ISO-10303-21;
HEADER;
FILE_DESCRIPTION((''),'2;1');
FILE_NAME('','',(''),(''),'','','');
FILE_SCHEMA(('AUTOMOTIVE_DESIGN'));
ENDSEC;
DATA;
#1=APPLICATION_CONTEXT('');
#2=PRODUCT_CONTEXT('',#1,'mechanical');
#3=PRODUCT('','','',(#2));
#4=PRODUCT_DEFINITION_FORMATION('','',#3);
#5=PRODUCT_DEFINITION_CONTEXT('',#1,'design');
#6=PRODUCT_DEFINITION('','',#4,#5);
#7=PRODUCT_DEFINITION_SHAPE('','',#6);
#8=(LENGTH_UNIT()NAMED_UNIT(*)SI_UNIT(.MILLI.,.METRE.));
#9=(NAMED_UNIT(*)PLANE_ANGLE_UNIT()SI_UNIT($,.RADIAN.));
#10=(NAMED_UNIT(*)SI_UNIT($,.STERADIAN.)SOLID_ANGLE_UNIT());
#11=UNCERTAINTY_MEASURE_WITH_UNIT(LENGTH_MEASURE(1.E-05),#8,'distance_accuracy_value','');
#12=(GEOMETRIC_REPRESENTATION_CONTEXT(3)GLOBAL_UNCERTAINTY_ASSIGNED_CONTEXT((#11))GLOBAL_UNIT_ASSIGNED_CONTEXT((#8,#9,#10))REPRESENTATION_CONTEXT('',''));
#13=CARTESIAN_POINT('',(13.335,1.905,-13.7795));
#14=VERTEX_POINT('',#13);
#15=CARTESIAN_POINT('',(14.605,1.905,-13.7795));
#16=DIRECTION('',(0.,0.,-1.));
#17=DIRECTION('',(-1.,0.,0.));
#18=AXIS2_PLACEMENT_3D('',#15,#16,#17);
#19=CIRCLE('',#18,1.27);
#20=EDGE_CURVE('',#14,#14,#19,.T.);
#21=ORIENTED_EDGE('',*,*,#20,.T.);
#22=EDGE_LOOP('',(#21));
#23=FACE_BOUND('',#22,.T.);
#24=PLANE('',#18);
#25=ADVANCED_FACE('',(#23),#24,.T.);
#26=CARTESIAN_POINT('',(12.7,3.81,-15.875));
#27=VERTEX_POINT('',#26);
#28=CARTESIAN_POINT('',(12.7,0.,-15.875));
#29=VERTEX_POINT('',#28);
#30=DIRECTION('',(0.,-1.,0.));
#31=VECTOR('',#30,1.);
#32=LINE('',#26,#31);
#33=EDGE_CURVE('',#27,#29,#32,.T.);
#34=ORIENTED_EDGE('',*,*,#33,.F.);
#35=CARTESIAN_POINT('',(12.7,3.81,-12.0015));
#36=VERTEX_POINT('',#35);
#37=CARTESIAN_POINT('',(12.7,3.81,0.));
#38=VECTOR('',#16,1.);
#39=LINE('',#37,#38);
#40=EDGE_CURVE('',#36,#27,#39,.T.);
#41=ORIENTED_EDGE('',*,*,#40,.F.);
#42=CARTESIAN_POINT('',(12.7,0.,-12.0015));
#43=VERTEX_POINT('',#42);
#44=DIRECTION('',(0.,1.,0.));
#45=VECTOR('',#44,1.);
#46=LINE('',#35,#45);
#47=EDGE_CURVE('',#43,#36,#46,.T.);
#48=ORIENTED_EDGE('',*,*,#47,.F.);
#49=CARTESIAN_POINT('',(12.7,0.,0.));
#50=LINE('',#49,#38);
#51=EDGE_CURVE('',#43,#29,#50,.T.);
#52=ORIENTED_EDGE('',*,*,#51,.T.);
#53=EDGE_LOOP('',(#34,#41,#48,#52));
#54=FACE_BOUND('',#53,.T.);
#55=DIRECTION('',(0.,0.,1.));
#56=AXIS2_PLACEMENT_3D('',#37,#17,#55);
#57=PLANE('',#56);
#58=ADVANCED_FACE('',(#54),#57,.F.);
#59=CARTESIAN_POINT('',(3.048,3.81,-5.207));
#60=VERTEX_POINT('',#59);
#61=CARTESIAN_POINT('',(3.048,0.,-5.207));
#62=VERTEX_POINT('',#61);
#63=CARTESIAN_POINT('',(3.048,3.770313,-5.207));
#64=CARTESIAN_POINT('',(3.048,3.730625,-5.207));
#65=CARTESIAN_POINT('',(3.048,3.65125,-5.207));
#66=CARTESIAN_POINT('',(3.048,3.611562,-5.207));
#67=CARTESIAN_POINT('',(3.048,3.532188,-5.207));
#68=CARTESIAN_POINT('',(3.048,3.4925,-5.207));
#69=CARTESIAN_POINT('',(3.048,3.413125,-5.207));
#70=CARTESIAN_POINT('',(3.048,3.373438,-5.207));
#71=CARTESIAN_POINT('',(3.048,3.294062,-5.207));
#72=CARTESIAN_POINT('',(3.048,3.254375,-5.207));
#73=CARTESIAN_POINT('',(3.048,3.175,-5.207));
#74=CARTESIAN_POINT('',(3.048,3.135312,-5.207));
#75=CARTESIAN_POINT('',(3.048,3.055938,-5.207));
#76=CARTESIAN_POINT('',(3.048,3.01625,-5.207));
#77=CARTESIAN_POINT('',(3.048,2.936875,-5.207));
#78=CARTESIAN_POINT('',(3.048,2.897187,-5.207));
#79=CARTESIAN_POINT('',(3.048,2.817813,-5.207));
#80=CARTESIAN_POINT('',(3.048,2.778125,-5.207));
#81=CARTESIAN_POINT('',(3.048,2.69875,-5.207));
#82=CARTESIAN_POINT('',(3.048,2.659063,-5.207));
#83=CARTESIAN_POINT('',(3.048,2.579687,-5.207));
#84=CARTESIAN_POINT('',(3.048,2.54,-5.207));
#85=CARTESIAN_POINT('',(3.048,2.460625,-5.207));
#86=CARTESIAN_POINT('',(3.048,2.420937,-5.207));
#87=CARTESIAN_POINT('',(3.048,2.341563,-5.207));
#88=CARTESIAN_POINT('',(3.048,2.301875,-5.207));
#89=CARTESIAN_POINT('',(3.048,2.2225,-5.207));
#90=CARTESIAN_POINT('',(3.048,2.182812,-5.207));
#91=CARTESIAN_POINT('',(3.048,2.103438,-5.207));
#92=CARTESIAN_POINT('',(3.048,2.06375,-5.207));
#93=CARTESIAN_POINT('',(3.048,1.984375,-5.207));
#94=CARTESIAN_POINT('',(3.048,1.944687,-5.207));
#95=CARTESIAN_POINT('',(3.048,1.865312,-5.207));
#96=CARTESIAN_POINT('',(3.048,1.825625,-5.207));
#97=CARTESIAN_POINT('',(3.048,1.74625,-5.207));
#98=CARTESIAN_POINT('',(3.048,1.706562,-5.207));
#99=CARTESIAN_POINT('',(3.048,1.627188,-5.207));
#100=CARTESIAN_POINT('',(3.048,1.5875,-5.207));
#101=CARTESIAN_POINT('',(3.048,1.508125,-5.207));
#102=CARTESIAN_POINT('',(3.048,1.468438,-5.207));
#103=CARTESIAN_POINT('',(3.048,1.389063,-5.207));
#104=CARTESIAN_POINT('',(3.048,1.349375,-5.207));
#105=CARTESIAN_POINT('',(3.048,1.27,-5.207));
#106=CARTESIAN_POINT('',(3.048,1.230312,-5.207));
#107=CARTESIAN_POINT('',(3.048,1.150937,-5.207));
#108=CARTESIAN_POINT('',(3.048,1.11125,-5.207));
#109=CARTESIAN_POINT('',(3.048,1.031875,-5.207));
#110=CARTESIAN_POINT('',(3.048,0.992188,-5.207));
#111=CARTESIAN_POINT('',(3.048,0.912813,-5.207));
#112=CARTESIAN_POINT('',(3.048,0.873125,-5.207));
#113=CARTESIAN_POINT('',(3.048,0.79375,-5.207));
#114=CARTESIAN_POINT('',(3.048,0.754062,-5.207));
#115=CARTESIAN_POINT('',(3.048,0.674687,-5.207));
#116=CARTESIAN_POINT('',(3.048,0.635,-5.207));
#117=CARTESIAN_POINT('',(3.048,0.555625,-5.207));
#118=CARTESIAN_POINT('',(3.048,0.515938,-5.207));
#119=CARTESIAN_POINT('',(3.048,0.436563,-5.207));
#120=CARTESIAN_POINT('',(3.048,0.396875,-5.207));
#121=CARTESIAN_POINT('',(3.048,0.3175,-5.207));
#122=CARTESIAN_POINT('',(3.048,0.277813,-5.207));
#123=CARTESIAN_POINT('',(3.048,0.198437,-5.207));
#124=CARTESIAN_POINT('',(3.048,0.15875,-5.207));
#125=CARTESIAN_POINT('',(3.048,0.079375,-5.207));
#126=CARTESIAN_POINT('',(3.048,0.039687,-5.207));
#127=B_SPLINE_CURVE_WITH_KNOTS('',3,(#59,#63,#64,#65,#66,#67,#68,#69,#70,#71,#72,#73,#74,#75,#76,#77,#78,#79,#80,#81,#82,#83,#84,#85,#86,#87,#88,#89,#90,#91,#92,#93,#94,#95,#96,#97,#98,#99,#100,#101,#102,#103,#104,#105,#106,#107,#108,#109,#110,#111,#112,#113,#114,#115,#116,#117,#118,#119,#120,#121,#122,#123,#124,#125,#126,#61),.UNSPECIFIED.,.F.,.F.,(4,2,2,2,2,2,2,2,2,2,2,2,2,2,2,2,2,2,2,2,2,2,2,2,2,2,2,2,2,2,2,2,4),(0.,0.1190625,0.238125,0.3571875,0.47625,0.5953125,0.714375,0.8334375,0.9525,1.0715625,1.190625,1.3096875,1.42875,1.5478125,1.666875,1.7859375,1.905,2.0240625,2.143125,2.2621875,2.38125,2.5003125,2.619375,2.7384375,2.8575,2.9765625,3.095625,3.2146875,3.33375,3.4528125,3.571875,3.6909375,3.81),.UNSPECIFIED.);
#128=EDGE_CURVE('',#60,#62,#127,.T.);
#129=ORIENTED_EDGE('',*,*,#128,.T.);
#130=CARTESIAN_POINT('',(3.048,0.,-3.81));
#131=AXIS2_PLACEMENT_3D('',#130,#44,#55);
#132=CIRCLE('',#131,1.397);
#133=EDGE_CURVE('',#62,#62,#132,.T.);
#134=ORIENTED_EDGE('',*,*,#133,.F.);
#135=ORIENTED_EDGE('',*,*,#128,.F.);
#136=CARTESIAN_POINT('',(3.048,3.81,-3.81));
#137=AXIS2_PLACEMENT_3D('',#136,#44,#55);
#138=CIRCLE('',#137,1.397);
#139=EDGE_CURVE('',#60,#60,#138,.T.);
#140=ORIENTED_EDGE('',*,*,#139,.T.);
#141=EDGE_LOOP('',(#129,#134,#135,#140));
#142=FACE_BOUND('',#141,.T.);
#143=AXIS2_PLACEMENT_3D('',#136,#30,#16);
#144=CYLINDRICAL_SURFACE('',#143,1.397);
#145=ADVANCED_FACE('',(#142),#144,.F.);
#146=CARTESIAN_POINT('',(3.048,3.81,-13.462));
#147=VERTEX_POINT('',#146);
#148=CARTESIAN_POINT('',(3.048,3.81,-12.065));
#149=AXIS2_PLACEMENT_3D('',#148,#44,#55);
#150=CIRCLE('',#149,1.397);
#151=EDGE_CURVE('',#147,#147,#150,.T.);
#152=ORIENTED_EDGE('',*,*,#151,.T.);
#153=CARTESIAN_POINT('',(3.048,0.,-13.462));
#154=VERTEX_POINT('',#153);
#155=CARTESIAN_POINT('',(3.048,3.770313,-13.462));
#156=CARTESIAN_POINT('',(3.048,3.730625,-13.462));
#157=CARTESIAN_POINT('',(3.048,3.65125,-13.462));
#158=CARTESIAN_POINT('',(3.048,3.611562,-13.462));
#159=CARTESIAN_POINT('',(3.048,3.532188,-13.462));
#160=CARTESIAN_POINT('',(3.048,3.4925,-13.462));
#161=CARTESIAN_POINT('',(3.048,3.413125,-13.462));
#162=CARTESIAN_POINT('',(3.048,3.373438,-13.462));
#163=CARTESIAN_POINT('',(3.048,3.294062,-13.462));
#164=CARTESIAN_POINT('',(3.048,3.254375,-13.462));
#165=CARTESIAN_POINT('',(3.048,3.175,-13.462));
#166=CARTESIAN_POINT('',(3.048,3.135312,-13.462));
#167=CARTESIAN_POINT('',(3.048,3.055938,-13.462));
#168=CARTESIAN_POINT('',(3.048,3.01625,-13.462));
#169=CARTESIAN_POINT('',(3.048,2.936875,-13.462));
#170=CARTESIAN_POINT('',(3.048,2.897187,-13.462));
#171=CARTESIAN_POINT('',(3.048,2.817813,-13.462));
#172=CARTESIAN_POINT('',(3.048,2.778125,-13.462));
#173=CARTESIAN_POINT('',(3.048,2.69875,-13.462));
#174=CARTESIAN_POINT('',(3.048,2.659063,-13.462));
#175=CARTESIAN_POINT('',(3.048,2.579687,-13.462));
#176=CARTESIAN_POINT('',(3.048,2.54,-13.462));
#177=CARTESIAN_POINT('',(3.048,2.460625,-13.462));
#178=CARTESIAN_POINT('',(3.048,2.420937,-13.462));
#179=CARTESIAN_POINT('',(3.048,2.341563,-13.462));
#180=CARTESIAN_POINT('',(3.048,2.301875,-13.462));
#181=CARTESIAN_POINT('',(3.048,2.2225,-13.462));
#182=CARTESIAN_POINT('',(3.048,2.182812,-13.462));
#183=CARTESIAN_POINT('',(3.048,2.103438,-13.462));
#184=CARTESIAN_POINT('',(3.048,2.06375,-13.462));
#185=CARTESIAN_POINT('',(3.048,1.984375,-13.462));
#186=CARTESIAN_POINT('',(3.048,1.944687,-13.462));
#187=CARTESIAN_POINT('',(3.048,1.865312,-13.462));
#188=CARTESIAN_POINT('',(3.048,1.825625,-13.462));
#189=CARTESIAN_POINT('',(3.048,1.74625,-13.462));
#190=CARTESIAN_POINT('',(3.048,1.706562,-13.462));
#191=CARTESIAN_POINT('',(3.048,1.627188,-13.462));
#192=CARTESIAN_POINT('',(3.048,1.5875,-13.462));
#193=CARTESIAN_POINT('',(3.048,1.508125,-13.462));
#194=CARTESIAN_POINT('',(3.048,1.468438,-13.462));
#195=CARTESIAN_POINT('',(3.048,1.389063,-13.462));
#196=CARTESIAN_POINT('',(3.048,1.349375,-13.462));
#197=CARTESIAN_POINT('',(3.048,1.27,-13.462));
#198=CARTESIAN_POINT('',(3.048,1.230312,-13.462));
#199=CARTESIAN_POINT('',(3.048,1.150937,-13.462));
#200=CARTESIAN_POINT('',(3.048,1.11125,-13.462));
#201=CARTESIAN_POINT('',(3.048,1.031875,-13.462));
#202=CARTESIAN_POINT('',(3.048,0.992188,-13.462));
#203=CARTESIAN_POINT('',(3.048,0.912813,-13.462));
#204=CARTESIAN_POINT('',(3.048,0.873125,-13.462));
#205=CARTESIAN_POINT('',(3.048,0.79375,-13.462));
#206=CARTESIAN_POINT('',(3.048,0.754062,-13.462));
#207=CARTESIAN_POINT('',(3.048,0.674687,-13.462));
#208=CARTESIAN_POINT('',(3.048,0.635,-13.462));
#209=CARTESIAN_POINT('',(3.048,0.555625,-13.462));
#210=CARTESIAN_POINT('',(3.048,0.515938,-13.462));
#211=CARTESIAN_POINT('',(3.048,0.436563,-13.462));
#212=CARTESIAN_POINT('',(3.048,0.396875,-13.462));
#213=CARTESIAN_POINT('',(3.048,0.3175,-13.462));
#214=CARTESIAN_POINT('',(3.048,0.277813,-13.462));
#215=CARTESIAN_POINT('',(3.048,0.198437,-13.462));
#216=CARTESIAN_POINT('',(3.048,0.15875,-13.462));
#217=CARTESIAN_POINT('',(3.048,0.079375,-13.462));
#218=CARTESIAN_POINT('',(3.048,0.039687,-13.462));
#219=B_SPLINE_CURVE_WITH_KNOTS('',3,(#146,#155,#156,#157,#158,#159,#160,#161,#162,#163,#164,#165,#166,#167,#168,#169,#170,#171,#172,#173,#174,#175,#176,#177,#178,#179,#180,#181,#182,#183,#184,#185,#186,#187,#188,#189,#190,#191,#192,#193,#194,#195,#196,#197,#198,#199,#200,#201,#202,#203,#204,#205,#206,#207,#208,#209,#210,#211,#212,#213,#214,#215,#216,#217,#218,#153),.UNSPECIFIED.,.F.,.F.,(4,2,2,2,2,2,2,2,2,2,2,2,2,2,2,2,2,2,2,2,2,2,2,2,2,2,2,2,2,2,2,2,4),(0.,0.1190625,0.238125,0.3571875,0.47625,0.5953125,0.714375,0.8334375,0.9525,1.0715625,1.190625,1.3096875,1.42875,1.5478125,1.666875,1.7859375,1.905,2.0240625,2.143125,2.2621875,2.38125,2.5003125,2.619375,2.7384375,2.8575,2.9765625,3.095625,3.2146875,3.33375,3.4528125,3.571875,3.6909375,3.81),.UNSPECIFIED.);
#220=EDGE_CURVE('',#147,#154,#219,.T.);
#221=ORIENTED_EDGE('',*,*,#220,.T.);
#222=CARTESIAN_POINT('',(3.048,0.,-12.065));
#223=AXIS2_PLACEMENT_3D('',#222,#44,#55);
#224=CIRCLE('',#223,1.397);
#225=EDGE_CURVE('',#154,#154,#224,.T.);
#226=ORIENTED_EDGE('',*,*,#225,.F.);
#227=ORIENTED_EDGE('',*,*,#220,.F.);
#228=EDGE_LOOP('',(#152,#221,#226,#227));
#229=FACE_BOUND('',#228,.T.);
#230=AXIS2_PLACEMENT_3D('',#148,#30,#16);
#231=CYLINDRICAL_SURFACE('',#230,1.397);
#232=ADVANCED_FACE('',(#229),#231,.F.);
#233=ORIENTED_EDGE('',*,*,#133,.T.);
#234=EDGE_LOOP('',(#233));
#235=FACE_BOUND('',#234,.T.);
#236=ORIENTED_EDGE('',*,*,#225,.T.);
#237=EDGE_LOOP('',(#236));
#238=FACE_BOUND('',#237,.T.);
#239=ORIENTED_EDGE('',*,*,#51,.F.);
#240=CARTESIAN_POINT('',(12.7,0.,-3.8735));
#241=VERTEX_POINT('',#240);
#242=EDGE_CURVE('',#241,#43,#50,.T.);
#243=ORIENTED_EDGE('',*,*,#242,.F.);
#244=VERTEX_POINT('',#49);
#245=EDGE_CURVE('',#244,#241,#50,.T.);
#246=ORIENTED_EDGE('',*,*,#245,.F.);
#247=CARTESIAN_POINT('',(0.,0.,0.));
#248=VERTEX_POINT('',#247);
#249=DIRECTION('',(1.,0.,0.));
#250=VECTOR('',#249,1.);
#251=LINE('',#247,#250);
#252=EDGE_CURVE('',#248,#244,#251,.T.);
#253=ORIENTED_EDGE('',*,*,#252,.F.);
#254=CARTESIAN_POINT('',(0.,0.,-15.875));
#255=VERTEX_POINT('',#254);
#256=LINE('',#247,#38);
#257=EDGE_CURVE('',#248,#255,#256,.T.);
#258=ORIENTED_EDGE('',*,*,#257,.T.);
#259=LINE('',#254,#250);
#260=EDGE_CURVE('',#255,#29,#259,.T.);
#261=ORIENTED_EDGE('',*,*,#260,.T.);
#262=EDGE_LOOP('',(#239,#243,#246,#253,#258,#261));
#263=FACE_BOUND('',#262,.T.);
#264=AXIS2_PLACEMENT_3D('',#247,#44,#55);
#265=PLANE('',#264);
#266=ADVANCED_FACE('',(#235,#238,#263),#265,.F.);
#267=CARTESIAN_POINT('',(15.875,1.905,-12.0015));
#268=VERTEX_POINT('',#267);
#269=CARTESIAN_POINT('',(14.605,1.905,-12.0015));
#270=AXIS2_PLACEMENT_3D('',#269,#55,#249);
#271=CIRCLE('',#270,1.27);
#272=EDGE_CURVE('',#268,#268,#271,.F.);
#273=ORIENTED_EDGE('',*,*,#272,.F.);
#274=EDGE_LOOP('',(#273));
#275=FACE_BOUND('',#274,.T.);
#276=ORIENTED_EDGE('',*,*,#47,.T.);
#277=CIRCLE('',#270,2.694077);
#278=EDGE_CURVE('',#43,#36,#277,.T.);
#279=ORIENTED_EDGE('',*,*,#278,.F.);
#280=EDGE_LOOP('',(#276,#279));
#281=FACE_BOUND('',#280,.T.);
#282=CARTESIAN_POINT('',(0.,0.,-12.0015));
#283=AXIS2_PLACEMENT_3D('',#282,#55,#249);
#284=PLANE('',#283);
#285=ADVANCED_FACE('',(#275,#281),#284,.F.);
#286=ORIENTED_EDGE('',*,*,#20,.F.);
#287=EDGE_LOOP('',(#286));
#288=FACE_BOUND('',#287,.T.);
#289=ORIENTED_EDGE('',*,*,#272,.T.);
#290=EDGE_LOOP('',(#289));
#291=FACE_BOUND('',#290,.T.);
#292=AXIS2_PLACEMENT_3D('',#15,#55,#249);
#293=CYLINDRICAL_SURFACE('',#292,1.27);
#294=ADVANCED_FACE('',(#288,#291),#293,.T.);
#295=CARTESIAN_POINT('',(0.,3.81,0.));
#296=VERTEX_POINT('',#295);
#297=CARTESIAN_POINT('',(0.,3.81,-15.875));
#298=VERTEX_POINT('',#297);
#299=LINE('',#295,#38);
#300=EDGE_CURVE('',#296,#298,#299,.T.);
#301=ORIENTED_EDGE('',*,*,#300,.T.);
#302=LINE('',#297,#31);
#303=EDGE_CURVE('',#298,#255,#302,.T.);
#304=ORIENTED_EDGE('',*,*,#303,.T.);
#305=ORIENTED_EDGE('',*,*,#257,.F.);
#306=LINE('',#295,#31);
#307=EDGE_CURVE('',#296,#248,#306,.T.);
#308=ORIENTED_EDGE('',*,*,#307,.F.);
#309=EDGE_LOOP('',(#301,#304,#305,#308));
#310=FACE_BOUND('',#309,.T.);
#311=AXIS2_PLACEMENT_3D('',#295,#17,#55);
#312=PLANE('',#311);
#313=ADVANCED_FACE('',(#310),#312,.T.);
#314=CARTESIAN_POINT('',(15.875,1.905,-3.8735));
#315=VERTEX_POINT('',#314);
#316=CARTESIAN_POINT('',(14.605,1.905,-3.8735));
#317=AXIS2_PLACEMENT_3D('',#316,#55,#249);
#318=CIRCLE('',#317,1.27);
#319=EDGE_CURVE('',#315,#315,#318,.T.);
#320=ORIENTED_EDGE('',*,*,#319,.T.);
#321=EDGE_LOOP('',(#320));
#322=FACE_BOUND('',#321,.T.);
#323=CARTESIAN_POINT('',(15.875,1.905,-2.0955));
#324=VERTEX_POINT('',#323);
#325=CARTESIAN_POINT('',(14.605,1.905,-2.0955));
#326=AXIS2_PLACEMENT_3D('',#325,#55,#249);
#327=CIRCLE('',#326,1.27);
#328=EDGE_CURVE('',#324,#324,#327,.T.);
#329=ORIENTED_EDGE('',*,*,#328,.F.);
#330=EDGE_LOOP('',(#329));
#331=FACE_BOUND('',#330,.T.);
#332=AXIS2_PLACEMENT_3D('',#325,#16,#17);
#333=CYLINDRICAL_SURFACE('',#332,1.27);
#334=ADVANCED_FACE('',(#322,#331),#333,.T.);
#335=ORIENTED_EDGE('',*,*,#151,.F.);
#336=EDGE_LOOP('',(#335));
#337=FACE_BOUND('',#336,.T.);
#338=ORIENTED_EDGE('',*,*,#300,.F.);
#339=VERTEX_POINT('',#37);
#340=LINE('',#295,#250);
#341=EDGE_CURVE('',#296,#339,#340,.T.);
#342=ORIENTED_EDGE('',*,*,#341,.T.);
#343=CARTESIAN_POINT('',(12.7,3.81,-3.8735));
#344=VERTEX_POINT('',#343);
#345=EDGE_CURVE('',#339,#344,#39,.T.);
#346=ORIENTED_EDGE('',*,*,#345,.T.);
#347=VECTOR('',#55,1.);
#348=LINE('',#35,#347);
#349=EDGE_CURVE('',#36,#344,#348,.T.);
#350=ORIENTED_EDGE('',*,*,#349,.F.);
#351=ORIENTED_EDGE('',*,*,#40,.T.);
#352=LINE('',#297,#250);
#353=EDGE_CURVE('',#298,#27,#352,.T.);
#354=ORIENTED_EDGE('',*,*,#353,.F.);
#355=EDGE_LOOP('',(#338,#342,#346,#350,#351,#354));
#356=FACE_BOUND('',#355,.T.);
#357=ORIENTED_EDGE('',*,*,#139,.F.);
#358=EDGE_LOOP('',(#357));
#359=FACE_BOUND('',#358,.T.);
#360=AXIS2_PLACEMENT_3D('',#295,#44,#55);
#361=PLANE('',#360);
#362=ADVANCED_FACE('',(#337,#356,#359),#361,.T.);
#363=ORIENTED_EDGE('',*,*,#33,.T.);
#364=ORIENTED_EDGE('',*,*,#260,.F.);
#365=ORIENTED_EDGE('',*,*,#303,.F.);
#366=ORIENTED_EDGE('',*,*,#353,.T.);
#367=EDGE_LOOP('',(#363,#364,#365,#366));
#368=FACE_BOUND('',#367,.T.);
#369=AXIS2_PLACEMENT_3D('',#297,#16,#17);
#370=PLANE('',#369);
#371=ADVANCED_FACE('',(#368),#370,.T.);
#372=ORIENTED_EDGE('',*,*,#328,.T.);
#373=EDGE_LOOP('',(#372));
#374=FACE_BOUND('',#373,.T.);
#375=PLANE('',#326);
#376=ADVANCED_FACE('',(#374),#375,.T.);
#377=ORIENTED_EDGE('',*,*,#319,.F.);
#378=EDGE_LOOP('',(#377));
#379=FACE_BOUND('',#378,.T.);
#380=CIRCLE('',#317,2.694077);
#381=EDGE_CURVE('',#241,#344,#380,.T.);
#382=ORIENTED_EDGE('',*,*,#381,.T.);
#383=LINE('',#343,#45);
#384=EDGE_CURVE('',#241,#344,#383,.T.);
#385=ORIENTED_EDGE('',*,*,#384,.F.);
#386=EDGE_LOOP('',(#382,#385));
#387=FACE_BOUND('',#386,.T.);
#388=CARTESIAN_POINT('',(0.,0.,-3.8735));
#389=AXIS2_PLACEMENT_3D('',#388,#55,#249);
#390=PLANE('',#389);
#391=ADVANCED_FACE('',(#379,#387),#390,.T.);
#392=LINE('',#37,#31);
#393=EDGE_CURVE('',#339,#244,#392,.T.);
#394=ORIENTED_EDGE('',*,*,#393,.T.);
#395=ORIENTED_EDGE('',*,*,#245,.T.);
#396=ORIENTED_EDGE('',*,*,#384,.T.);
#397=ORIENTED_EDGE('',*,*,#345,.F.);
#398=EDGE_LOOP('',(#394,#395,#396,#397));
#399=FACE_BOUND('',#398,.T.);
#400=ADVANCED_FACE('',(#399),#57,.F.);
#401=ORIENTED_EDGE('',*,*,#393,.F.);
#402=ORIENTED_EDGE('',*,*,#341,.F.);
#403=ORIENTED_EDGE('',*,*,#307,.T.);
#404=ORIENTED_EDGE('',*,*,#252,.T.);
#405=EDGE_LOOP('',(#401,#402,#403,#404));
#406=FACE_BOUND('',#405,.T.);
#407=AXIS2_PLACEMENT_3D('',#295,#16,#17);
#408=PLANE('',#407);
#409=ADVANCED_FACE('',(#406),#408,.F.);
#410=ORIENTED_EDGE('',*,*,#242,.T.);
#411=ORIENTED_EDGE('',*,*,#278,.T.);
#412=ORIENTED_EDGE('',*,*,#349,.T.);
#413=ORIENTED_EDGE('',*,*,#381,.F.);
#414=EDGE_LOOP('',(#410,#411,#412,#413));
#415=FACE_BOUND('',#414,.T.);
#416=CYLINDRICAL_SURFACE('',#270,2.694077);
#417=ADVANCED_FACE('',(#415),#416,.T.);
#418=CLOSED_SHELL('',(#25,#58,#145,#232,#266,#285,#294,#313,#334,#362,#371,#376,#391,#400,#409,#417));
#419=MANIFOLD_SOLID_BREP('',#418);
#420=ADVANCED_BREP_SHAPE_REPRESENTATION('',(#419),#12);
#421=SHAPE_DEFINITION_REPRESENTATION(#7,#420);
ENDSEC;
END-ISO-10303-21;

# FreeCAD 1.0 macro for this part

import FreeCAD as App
import Part
import Sketcher

V = App.Vector
Q = App.Units.Quantity

doc = App.newDocument("Part")
body = doc.addObject("PartDesign::Body", "Body")

# Sketch on XZ plane
sketch1 = body.newObject("Sketcher::SketchObject", "Sketch")
sketch1.AttachmentSupport = (doc.getObject("XZ_Plane"), [""])
sketch1.MapMode = "FlatFace"
sketch1.addGeometry([
    Part.LineSegment(V(0, -15.9, 0), V(0, 0, 0)),  # 0
    Part.LineSegment(V(0, 0, 0), V(12.7, 0, 0)),  # 1
    Part.LineSegment(V(12.7, 0, 0), V(12.7, -15.9, 0)),  # 2
    Part.LineSegment(V(12.7, -15.9, 0), V(0, -15.9, 0)),  # 3
    Part.Circle(V(3, -3.8, 0), V(0, 0, 1), 1.4),  # 4
    Part.Circle(V(3, -12.1, 0), V(0, 0, 1), 1.4),  # 5
], False)
sketch1.addConstraint([
    Sketcher.Constraint("Coincident", 0, 2, 1, 1),
    Sketcher.Constraint("Coincident", 1, 2, 2, 1),
    Sketcher.Constraint("Coincident", 2, 2, 3, 1),
    Sketcher.Constraint("Coincident", 3, 2, 0, 1),
    Sketcher.Constraint("Vertical", 0),
    Sketcher.Constraint("Horizontal", 1),
    Sketcher.Constraint("Vertical", 2),
    Sketcher.Constraint("Horizontal", 3),
    Sketcher.Constraint("Coincident", 0, 2, -1, 1),
    Sketcher.Constraint("Equal", 4, 5),
    Sketcher.Constraint("Vertical", 4, 3, 5, 3),
    Sketcher.Constraint("Diameter", 4, Q("0.11 in")),
    Sketcher.Constraint("DistanceX", 1, 1, 1, 2, Q("0.5 in")),
    Sketcher.Constraint("DistanceY", 0, 1, 0, 2, Q("0.625 in")),
    Sketcher.Constraint("DistanceX", -1, 1, 4, 3, Q("0.12 in")),
    Sketcher.Constraint("DistanceY", 4, 3, -1, 1, Q("0.15 in")),
    Sketcher.Constraint("DistanceY", 2, 2, 5, 3, Q("0.15 in")),
])
pad1 = body.newObject("PartDesign::Pad", "Pad")
pad1.Profile = sketch1
pad1.Length = Q("0.15 in")
pad1.Reversed = True

# Sketch on XY plane
sketch2 = body.newObject("Sketcher::SketchObject", "Sketch001")
sketch2.AttachmentSupport = (doc.getObject("XY_Plane"), [""])
sketch2.MapMode = "FlatFace"
sketch2.AttachmentOffset = App.Placement(V(0, 0, -0.3125 * 25.4), App.Rotation())
sketch2.addGeometry(Part.Circle(V(14.6, 1.9, 0), V(0, 0, 1), 2.7), False)
sketch2.addConstraint([
    Sketcher.Constraint("DistanceX", -1, 1, 0, 3, Q("0.575 in")),
    Sketcher.Constraint("DistanceY", -1, 1, 0, 3, Q("0.075 in")),
    Sketcher.Constraint("Diameter", 0, 5.388154),
])
pad2 = body.newObject("PartDesign::Pad", "Pad001")
pad2.Profile = sketch2
pad2.Type = "TwoLengths"
pad2.Length = Q("0.16 in")
pad2.Length2 = Q("0.16 in")

# Sketch on XY plane
sketch3 = body.newObject("Sketcher::SketchObject", "Sketch002")
sketch3.AttachmentSupport = (doc.getObject("XY_Plane"), [""])
sketch3.MapMode = "FlatFace"
sketch3.AttachmentOffset = App.Placement(V(0, 0, -0.1525 * 25.4), App.Rotation())
sketch3.addGeometry(Part.Circle(V(14.6, 1.9, 0), V(0, 0, 1), 1.3), False)
sketch3.addConstraint([
    Sketcher.Constraint("Diameter", 0, Q("0.1 in")),
    Sketcher.Constraint("DistanceX", -1, 1, 0, 3, Q("0.575 in")),
    Sketcher.Constraint("DistanceY", -1, 1, 0, 3, Q("0.075 in")),
])
pad3 = body.newObject("PartDesign::Pad", "Pad002")
pad3.Profile = sketch3
pad3.Length = Q("0.07 in")

# Sketch on XY plane
sketch4 = body.newObject("Sketcher::SketchObject", "Sketch003")
sketch4.AttachmentSupport = (doc.getObject("XY_Plane"), [""])
sketch4.MapMode = "FlatFace"
sketch4.AttachmentOffset = App.Placement(V(0, 0, -0.5425 * 25.4), App.Rotation())
sketch4.addGeometry(Part.Circle(V(14.6, 1.9, 0), V(0, 0, 1), 1.3), False)
sketch4.addConstraint([
    Sketcher.Constraint("Diameter", 0, Q("0.1 in")),
    Sketcher.Constraint("DistanceX", -1, 1, 0, 3, Q("0.575 in")),
    Sketcher.Constraint("DistanceY", -1, 1, 0, 3, Q("0.075 in")),
])
pad4 = body.newObject("PartDesign::Pad", "Pad003")
pad4.Profile = sketch4
pad4.Length = Q("0.07 in")

doc.recompute()
